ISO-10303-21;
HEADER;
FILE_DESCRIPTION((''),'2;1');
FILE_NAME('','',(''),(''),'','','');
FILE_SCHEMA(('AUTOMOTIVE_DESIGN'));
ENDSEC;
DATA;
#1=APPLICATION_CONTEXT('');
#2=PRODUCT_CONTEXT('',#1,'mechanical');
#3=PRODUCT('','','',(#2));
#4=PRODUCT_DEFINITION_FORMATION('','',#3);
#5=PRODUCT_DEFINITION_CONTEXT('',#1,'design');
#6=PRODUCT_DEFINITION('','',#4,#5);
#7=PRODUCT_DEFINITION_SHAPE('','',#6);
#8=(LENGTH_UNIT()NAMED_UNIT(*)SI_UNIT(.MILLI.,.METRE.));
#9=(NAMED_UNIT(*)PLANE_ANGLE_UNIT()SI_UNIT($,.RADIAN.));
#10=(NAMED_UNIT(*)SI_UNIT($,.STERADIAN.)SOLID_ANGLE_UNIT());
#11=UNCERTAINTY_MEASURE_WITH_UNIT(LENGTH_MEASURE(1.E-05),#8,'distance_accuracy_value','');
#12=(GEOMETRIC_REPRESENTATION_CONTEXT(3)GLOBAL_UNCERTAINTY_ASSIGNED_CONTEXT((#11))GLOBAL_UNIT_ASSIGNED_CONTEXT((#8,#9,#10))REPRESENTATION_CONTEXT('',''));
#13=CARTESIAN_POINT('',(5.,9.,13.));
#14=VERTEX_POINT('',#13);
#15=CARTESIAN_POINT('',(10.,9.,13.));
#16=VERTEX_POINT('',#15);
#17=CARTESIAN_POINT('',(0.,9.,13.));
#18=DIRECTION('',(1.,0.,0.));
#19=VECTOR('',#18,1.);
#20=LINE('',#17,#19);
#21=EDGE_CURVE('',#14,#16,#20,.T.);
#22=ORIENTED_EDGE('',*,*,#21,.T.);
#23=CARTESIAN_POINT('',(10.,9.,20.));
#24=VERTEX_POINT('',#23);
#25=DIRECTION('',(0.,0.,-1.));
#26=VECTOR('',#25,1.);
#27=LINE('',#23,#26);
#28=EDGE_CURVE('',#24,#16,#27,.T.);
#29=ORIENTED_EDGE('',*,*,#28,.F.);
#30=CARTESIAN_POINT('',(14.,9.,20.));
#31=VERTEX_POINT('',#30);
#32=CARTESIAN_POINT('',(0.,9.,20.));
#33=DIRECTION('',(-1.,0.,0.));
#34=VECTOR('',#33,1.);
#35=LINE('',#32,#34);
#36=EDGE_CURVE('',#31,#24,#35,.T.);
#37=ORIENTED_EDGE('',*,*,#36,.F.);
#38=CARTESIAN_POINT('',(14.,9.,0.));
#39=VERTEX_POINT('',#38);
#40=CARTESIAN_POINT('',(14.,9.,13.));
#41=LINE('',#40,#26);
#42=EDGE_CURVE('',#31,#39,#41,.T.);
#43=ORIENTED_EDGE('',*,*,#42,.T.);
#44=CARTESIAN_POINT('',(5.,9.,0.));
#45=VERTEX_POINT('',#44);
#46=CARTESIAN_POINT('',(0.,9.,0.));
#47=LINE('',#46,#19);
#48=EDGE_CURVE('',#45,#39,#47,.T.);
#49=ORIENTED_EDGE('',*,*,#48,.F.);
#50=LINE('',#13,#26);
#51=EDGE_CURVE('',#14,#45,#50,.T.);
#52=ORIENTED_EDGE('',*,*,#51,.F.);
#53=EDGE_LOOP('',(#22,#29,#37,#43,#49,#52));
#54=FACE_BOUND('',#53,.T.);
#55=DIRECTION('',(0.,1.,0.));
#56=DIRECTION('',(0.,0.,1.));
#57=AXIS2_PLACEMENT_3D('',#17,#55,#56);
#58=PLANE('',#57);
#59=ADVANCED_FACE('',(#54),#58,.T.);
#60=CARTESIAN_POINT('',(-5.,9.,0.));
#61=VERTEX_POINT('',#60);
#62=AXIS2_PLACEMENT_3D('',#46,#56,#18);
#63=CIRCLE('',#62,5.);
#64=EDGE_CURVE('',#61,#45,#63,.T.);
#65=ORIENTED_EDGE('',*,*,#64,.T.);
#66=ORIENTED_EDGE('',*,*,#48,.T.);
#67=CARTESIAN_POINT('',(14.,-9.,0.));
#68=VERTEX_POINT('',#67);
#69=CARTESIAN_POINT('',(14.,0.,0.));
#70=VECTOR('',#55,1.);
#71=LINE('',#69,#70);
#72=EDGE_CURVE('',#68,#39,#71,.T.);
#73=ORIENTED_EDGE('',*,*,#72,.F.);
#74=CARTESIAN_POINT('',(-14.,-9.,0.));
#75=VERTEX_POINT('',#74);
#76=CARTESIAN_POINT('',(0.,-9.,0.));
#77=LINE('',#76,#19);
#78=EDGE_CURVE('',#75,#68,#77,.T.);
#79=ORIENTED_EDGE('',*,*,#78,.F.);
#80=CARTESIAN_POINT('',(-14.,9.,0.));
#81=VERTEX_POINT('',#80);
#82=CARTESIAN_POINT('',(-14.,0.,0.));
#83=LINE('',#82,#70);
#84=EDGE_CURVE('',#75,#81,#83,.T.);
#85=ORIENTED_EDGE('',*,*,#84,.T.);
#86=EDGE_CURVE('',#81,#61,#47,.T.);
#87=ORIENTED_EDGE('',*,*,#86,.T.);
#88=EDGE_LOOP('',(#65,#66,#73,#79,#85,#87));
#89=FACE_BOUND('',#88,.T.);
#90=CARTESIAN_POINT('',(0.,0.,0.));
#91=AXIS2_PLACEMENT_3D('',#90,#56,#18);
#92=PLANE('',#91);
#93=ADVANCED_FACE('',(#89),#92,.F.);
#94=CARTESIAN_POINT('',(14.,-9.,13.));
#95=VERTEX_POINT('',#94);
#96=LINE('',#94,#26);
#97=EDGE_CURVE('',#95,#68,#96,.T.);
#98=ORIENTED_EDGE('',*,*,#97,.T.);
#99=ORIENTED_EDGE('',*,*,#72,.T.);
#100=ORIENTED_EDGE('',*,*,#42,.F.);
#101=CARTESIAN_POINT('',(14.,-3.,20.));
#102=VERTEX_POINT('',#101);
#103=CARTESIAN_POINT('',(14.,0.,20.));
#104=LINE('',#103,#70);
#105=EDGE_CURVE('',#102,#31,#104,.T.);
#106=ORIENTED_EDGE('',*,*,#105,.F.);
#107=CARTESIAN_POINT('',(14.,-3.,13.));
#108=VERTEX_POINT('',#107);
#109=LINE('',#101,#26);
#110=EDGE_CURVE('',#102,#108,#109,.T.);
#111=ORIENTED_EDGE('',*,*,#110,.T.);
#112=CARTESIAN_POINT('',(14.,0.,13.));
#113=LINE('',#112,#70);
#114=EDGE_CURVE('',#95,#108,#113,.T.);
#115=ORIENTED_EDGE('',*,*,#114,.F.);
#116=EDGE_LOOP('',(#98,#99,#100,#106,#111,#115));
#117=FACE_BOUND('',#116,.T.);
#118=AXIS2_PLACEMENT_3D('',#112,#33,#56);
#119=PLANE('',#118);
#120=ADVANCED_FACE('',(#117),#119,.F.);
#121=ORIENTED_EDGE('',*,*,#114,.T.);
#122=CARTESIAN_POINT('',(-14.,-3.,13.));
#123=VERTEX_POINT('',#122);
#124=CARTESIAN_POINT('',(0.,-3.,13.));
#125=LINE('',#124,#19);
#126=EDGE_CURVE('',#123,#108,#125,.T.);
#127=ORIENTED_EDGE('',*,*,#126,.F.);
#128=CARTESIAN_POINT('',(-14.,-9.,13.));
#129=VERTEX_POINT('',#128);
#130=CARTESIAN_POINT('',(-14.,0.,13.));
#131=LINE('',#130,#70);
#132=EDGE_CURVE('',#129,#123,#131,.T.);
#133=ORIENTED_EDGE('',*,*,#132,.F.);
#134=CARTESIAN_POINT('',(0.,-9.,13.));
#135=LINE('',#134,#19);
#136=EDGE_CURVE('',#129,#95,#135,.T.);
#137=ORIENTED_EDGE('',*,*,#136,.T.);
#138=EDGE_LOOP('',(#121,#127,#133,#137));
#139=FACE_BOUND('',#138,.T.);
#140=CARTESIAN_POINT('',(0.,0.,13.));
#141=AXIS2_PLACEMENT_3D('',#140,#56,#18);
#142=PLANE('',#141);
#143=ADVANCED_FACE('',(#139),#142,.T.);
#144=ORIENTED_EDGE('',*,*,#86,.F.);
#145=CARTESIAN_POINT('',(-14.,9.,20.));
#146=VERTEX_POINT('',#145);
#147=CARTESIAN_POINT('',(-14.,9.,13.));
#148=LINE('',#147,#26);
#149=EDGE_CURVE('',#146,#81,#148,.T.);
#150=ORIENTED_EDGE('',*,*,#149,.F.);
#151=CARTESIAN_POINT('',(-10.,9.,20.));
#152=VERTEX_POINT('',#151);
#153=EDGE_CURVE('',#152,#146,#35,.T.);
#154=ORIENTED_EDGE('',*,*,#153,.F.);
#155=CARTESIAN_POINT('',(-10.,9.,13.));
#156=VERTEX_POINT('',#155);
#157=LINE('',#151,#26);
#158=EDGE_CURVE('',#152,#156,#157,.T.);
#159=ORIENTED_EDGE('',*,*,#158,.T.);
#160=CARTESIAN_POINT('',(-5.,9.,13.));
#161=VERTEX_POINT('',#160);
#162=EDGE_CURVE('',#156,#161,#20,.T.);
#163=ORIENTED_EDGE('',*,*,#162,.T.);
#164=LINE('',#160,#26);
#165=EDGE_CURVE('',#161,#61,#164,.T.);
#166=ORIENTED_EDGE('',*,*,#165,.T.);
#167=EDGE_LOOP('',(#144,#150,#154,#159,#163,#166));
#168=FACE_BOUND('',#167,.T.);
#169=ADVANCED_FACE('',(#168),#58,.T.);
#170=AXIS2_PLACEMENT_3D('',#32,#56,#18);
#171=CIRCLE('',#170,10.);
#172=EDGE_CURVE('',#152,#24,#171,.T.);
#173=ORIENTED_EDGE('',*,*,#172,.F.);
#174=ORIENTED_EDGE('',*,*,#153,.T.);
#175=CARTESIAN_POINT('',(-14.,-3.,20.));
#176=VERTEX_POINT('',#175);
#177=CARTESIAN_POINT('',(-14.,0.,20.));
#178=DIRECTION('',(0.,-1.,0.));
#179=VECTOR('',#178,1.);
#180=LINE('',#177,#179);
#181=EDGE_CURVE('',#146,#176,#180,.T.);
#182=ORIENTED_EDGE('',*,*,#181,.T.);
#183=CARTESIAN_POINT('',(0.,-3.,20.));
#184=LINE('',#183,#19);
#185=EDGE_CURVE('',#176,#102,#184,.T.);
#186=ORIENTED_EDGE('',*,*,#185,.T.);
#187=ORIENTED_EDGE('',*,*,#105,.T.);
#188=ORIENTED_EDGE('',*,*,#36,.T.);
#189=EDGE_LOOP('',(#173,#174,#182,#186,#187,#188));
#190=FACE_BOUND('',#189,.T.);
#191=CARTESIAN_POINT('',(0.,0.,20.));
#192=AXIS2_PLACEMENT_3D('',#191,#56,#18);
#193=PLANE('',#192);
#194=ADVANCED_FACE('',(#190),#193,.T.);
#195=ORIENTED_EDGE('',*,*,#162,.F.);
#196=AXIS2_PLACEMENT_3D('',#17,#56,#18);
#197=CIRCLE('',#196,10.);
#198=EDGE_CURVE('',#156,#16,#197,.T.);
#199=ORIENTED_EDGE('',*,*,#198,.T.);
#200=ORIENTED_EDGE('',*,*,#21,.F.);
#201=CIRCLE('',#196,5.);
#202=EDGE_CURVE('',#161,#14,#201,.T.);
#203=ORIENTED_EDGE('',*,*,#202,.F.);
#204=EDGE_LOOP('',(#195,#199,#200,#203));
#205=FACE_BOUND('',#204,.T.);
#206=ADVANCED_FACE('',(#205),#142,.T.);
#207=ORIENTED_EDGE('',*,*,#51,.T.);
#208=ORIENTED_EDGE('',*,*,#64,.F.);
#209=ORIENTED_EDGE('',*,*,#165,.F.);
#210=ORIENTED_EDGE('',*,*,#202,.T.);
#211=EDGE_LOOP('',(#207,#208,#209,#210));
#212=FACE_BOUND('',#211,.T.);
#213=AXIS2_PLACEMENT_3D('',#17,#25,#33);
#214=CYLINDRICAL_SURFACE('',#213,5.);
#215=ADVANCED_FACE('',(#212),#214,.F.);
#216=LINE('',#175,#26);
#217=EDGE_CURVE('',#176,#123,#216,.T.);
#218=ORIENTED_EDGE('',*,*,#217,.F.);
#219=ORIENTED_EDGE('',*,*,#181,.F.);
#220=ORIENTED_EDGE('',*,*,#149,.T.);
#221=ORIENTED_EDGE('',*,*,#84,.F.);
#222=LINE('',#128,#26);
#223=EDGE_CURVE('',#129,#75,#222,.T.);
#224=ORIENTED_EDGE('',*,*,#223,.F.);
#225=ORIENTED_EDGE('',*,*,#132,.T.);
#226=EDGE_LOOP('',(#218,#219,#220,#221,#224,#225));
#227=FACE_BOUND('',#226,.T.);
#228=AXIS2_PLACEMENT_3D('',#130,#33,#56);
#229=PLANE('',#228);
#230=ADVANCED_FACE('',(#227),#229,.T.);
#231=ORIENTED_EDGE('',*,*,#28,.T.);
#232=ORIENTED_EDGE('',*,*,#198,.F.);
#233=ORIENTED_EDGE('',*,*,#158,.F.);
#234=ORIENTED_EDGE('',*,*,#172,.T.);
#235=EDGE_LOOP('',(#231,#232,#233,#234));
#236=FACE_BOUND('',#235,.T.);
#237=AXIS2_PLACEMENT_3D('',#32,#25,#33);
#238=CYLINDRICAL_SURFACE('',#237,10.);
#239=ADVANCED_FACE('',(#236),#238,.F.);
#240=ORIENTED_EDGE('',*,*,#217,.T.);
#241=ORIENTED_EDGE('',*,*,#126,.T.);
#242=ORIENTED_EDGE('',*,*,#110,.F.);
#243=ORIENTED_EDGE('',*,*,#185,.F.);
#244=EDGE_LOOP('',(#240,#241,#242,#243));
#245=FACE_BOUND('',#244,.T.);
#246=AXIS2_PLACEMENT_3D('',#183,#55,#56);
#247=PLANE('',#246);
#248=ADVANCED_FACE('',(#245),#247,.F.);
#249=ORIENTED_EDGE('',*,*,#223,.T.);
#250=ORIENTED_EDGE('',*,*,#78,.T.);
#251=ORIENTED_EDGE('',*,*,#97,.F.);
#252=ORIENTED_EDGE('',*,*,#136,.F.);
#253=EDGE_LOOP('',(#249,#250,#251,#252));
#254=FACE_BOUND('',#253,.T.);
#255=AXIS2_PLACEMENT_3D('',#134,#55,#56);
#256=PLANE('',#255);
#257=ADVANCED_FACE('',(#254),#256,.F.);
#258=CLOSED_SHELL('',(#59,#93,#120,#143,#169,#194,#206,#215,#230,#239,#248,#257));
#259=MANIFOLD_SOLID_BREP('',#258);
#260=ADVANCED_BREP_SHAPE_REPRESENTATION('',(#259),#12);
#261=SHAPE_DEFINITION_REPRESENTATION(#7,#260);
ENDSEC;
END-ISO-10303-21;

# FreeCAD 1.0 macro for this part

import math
import FreeCAD as App
import Part
import Sketcher

doc = App.newDocument("Part")
params = doc.addObject("Spreadsheet::Sheet", "Params")
for row, (alias, value) in enumerate([
    ("sketch1_radius", "5 mm"),
    ("sketch1_width", "9 mm"),
    ("pad1_length", "13 mm"),
    ("sketch2_width", "28 mm"),
    ("pad2_length", "13 mm"),
    ("sketch3_radius", "10 mm"),
    ("sketch3_width", "4 mm"),
    ("sketch3_height", "12 mm"),
    ("pad3_length", "7 mm"),
], start=1):
    params.set(f"A{row}", alias)
    params.set(f"B{row}", "=" + value)
    params.setAlias(f"B{row}", alias)

body = doc.addObject("PartDesign::Body", "Body")

sketch1 = body.newObject("Sketcher::SketchObject", "Sketch")
sketch1.AttachmentSupport = (doc.getObject("XY_Plane"), [""])
sketch1.MapMode = "FlatFace"
sketch1.addGeometry(Part.LineSegment(App.Vector(14, 9, 0), App.Vector(5, 9, 0)), False)
sketch1.addGeometry(Part.ArcOfCircle(Part.Circle(App.Vector(0, 9, 0), App.Vector(0, 0, 1), 5), math.radians(180), math.radians(360)), False)
sketch1.addGeometry(Part.LineSegment(App.Vector(-5, 9, 0), App.Vector(-14, 9, 0)), False)
sketch1.addGeometry(Part.LineSegment(App.Vector(-14, 9, 0), App.Vector(-14, 2, 0)), False)
sketch1.addGeometry(Part.LineSegment(App.Vector(-14, 2, 0), App.Vector(14, 2, 0)), False)
sketch1.addGeometry(Part.LineSegment(App.Vector(14, 2, 0), App.Vector(14, 9, 0)), False)
sketch1.addConstraint(Sketcher.Constraint("Coincident", 0, 2, 1, 2))
sketch1.addConstraint(Sketcher.Constraint("Coincident", 1, 1, 2, 1))
sketch1.addConstraint(Sketcher.Constraint("Coincident", 2, 2, 3, 1))
sketch1.addConstraint(Sketcher.Constraint("Coincident", 3, 2, 4, 1))
sketch1.addConstraint(Sketcher.Constraint("Coincident", 4, 2, 5, 1))
sketch1.addConstraint(Sketcher.Constraint("Coincident", 5, 2, 0, 1))
sketch1.addConstraint(Sketcher.Constraint("Horizontal", 0))
sketch1.addConstraint(Sketcher.Constraint("Horizontal", 2))
sketch1.addConstraint(Sketcher.Constraint("Vertical", 3))
sketch1.addConstraint(Sketcher.Constraint("Horizontal", 4))
sketch1.addConstraint(Sketcher.Constraint("Vertical", 5))
sketch1.addConstraint(Sketcher.Constraint("Symmetric", 0, 2, 1, 1, -2))
sketch1.addConstraint(Sketcher.Constraint("Horizontal", 1, 3, 0, 2))
sketch1.addConstraint(Sketcher.Constraint("Equal", 0, 2))
sketch1.addConstraint(Sketcher.Constraint("Radius", 1, 5.0))
sketch1.addConstraint(Sketcher.Constraint("DistanceX", 0, 2, 0, 1, 9.0))
sketch1.addConstraint(Sketcher.Constraint("DistanceY", -1, 1, 1, 3, 9.0))
sketch1.addConstraint(Sketcher.Constraint("DistanceY", 3, 2, 3, 1, 7.365201))
sketch1.setExpression("Constraints[14]", "Params.sketch1_radius")
sketch1.setExpression("Constraints[15]", "Params.sketch1_width")
pad1 = body.newObject("PartDesign::Pad", "Pad")
pad1.Profile = sketch1
pad1.setExpression("Length", "Params.pad1_length")
body2 = doc.addObject("PartDesign::Body", "Body001")

sketch2 = body2.newObject("Sketcher::SketchObject", "Sketch001")
sketch2.AttachmentSupport = (doc.getObject("XY_Plane001"), [""])
sketch2.MapMode = "FlatFace"
sketch2.addGeometry(Part.LineSegment(App.Vector(-14, 2, 0), App.Vector(-14, -9, 0)), False)
sketch2.addGeometry(Part.LineSegment(App.Vector(-14, -9, 0), App.Vector(14, -9, 0)), False)
sketch2.addGeometry(Part.LineSegment(App.Vector(14, -9, 0), App.Vector(14, 2, 0)), False)
sketch2.addGeometry(Part.LineSegment(App.Vector(14, 2, 0), App.Vector(-14, 2, 0)), False)
sketch2.addConstraint(Sketcher.Constraint("Coincident", 0, 2, 1, 1))
sketch2.addConstraint(Sketcher.Constraint("Coincident", 1, 2, 2, 1))
sketch2.addConstraint(Sketcher.Constraint("Coincident", 2, 2, 3, 1))
sketch2.addConstraint(Sketcher.Constraint("Coincident", 3, 2, 0, 1))
sketch2.addConstraint(Sketcher.Constraint("Vertical", 0))
sketch2.addConstraint(Sketcher.Constraint("Horizontal", 1))
sketch2.addConstraint(Sketcher.Constraint("Vertical", 2))
sketch2.addConstraint(Sketcher.Constraint("Horizontal", 3))
sketch2.addConstraint(Sketcher.Constraint("DistanceX", 1, 1, 1, 2, 28.0))
sketch2.addConstraint(Sketcher.Constraint("DistanceX", 0, 2, -1, 1, 14.0))
sketch2.addConstraint(Sketcher.Constraint("DistanceY", 0, 2, -1, 1, 9.0))
sketch2.addConstraint(Sketcher.Constraint("DistanceY", 0, 2, 0, 1, 10.634799))
sketch2.setExpression("Constraints[8]", "Params.sketch2_width")
pad2 = body2.newObject("PartDesign::Pad", "Pad001")
pad2.Profile = sketch2
pad2.setExpression("Length", "Params.pad2_length")
doc.recompute()

boolean = body.newObject("PartDesign::Boolean", "Boolean")
boolean.Type = "Fuse"
boolean.addObjects([body2])

sketch3 = body.newObject("Sketcher::SketchObject", "Sketch002")
sketch3.AttachmentSupport = (doc.getObject("XY_Plane"), [""])
sketch3.MapMode = "FlatFace"
sketch3.AttachmentOffset = App.Placement(App.Vector(0, 0, 13), App.Rotation())
sketch3.addGeometry(Part.LineSegment(App.Vector(14, 9, 0), App.Vector(10, 9, 0)), False)
sketch3.addGeometry(Part.ArcOfCircle(Part.Circle(App.Vector(0, 9, 0), App.Vector(0, 0, 1), 10), math.radians(-47), math.radians(0)), False)
sketch3.addGeometry(Part.ArcOfCircle(Part.Circle(App.Vector(0, 9, 0), App.Vector(0, 0, 1), 10), math.radians(-133), math.radians(-47)), False)
sketch3.addGeometry(Part.ArcOfCircle(Part.Circle(App.Vector(0, 9, 0), App.Vector(0, 0, 1), 10), math.radians(180), math.radians(227)), False)
sketch3.addGeometry(Part.LineSegment(App.Vector(-10, 9, 0), App.Vector(-14, 9, 0)), False)
sketch3.addGeometry(Part.LineSegment(App.Vector(-14, 9, 0), App.Vector(-14, -3, 0)), False)
sketch3.addGeometry(Part.LineSegment(App.Vector(-14, -3, 0), App.Vector(14, -3, 0)), False)
sketch3.addGeometry(Part.LineSegment(App.Vector(14, -3, 0), App.Vector(14, 9, 0)), False)
sketch3.addConstraint(Sketcher.Constraint("Coincident", 0, 2, 1, 2))
sketch3.addConstraint(Sketcher.Constraint("Tangent", 1, 1, 2, 2))
sketch3.addConstraint(Sketcher.Constraint("Tangent", 2, 1, 3, 2))
sketch3.addConstraint(Sketcher.Constraint("Coincident", 3, 1, 4, 1))
sketch3.addConstraint(Sketcher.Constraint("Coincident", 4, 2, 5, 1))
sketch3.addConstraint(Sketcher.Constraint("Coincident", 5, 2, 6, 1))
sketch3.addConstraint(Sketcher.Constraint("Coincident", 6, 2, 7, 1))
sketch3.addConstraint(Sketcher.Constraint("Coincident", 7, 2, 0, 1))
sketch3.addConstraint(Sketcher.Constraint("Horizontal", 0))
sketch3.addConstraint(Sketcher.Constraint("Horizontal", 4))
sketch3.addConstraint(Sketcher.Constraint("Vertical", 5))
sketch3.addConstraint(Sketcher.Constraint("Horizontal", 6))
sketch3.addConstraint(Sketcher.Constraint("Vertical", 7))
sketch3.addConstraint(Sketcher.Constraint("Coincident", 3, 3, 1, 3))
sketch3.addConstraint(Sketcher.Constraint("Symmetric", 1, 1, 2, 1, -2))
sketch3.addConstraint(Sketcher.Constraint("Symmetric", 4, 2, 7, 2, -2))
sketch3.addConstraint(Sketcher.Constraint("Horizontal", 3, 3, 0, 2))
sketch3.addConstraint(Sketcher.Constraint("Radius", 1, 10.0))
sketch3.addConstraint(Sketcher.Constraint("DistanceX", 0, 2, 0, 1, 4.0))
sketch3.addConstraint(Sketcher.Constraint("DistanceY", 5, 2, 5, 1, 12.0))
sketch3.addConstraint(Sketcher.Constraint("DistanceY", -1, 1, 1, 3, 9.0))
sketch3.addConstraint(Sketcher.Constraint("DistanceY", -1, 1, 1, 1, 1.634799))
sketch3.setExpression("Constraints[17]", "Params.sketch3_radius")
sketch3.setExpression("Constraints[18]", "Params.sketch3_width")
sketch3.setExpression("Constraints[19]", "Params.sketch3_height")
pad3 = body.newObject("PartDesign::Pad", "Pad002")
pad3.Profile = sketch3
pad3.setExpression("Length", "Params.pad3_length")

doc.recompute()
